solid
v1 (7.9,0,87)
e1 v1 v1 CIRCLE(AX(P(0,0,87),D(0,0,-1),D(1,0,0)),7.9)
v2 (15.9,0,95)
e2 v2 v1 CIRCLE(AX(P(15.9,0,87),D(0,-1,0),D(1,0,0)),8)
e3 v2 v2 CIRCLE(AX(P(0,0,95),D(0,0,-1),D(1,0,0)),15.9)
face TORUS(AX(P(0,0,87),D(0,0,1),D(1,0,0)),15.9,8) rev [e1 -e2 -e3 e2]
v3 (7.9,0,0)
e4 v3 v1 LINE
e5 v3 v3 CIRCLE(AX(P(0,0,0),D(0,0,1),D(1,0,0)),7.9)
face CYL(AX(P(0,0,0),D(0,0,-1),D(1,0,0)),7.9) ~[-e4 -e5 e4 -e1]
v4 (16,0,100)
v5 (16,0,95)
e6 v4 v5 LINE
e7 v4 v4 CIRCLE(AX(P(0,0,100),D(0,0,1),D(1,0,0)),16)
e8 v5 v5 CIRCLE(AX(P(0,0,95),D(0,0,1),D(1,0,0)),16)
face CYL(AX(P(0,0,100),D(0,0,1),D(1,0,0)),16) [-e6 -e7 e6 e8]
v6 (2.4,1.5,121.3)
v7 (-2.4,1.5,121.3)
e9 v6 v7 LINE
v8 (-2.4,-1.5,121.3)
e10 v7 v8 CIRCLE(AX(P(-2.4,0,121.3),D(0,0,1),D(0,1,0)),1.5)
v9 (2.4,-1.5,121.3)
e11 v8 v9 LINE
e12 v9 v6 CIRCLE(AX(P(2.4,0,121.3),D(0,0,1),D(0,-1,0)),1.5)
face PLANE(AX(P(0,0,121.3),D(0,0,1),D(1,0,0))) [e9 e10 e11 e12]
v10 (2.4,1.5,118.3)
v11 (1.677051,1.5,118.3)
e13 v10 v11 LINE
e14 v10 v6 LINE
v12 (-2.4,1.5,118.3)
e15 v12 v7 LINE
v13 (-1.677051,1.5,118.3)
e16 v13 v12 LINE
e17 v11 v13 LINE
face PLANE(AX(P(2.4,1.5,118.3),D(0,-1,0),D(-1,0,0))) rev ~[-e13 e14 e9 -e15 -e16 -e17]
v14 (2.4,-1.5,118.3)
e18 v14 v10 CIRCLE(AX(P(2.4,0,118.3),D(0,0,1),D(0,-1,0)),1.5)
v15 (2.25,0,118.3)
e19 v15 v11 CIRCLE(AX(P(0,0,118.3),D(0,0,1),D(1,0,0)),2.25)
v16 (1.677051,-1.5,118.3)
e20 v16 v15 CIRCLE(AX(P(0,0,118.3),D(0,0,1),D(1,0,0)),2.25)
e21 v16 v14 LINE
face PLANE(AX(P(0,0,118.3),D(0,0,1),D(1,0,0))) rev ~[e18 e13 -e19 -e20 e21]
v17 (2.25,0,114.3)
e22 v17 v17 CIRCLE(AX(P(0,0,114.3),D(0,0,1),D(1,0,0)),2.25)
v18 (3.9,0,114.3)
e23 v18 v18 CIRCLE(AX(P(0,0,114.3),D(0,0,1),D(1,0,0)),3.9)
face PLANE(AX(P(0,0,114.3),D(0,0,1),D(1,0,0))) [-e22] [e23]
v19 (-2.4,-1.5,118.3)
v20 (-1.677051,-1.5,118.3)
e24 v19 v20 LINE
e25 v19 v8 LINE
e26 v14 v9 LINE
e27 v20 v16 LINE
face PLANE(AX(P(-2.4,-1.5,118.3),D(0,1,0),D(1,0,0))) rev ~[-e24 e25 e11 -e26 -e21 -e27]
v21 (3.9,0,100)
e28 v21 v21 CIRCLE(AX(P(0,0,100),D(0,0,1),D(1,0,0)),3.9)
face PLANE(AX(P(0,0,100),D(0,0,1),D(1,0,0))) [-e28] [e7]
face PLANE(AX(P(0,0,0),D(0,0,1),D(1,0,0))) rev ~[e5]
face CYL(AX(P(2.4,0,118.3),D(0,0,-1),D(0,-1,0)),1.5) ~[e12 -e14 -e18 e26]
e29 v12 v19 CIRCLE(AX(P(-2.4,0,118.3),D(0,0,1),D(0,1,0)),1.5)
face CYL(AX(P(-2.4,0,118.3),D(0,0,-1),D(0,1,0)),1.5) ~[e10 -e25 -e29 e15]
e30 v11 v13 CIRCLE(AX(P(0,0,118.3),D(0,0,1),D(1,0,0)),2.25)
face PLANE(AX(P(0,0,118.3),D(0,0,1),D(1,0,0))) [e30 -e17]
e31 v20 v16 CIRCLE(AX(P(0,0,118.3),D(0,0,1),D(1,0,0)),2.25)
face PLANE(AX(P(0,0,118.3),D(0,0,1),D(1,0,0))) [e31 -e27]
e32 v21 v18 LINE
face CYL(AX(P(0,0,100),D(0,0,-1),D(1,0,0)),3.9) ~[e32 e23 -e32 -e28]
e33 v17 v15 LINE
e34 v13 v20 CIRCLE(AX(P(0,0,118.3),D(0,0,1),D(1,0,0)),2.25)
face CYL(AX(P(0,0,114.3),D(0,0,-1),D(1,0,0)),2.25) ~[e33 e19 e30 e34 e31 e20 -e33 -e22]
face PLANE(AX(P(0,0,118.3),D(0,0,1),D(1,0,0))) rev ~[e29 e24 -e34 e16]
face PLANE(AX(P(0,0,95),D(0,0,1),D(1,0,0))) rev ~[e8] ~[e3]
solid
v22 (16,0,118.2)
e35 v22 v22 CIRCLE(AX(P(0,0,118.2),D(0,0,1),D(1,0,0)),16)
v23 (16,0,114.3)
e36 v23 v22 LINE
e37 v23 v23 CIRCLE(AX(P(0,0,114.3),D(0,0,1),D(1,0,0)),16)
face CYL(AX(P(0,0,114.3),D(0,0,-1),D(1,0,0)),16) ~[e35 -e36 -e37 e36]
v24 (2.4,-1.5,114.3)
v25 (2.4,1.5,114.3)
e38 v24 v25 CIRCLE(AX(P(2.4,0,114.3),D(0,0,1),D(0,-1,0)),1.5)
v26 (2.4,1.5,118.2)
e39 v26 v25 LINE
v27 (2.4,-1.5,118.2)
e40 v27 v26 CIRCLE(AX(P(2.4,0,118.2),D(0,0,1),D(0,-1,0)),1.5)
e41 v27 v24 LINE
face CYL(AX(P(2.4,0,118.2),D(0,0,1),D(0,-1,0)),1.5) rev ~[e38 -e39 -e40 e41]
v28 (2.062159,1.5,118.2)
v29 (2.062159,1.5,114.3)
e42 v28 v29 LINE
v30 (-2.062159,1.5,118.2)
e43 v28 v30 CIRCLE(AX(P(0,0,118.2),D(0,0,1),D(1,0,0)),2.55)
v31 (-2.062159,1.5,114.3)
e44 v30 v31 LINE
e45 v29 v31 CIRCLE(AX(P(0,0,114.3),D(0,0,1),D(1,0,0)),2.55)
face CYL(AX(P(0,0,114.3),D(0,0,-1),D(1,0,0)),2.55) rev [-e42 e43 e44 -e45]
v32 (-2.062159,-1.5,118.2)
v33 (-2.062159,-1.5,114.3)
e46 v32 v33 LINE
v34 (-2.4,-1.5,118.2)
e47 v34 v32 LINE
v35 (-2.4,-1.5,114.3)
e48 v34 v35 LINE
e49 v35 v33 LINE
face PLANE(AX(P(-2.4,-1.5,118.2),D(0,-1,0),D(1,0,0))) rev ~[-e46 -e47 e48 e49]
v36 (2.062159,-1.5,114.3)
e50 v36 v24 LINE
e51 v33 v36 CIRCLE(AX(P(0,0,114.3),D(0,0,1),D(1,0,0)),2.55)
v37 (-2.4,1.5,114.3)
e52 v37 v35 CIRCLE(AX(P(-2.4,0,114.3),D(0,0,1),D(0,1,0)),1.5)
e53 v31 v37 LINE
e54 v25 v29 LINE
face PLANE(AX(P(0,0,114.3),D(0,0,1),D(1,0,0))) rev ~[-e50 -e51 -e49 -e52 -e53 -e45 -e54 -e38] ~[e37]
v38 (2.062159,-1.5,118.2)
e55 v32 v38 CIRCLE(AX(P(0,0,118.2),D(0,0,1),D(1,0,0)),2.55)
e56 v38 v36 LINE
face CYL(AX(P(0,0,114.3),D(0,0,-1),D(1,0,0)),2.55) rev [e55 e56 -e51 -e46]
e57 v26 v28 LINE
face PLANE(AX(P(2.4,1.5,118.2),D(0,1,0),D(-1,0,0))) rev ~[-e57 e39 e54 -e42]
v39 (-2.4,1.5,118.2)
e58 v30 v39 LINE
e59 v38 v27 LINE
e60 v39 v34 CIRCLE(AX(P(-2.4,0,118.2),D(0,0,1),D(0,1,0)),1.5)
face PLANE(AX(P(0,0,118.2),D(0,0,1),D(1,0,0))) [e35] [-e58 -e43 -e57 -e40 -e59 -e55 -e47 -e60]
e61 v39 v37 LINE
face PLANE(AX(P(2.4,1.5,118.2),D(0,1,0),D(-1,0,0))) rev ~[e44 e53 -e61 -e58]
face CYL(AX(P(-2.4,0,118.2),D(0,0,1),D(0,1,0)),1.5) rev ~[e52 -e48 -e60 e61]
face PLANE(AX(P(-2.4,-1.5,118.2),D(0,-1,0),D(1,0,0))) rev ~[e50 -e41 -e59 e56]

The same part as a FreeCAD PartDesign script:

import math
import FreeCAD as App
import Part
import Sketcher

V = App.Vector
Q = App.Units.Quantity


def edges_at(feature, points):
    """Names of the edges that pass closest to the given points."""
    edges = feature.Shape.Edges
    near = lambda p: min(range(len(edges)), key=lambda i: edges[i].distToShape(Part.Vertex(*p))[0])
    return sorted({f"Edge{near(p) + 1}" for p in points})

doc = App.newDocument("Part")
params = doc.addObject("Spreadsheet::Sheet", "Params")
for row, (alias, value) in enumerate([
    ("sketch1_diameter", "15.8 mm"),
    ("pad1_length", "100 mm"),
    ("sketch2_diameter", "7.8 mm"),
    ("pad2_length", "14.3 mm"),
    ("sketch3_diameter", "4.5 mm"),
    ("pad3_length", "4 mm"),
    ("sketch4_radius", "1.5 mm"),
    ("sketch4_width", "4.8 mm"),
    ("pad4_length", "3 mm"),
    ("sketch5_diameter", "32 mm"),
    ("pad5_length", "5 mm"),
    ("fillet_radius", "8 mm"),
    ("sketch6_diameter", "32 mm"),
    ("sketch6_diameter2", "5.1 mm"),
    ("pad6_length", "3.9 mm"),
    ("sketch7_radius", "1.5 mm"),
    ("sketch7_width", "4.8 mm"),
], start=1):
    params.set(f"A{row}", alias)
    params.set(f"B{row}", "=" + value)
    params.setAlias(f"B{row}", alias)

body = doc.addObject("PartDesign::Body", "Body")

# Sketch on XY plane
sketch1 = body.newObject("Sketcher::SketchObject", "Sketch")
sketch1.AttachmentSupport = (doc.getObject("XY_Plane"), [""])
sketch1.MapMode = "FlatFace"
sketch1.addGeometry(Part.Circle(V(0, 0, 0), V(0, 0, 1), 8), False)
sketch1.addConstraint([
    Sketcher.Constraint("Coincident", 0, 3, -1, 1),
    Sketcher.Constraint("Diameter", 0, Q("15.8 mm")),
])
sketch1.setExpression("Constraints[1]", "Params.sketch1_diameter")
pad1 = body.newObject("PartDesign::Pad", "Pad")
pad1.Profile = sketch1
pad1.setExpression("Length", "Params.pad1_length")

# Sketch on XY plane
sketch2 = body.newObject("Sketcher::SketchObject", "Sketch001")
sketch2.AttachmentSupport = (doc.getObject("XY_Plane"), [""])
sketch2.MapMode = "FlatFace"
sketch2.AttachmentOffset = App.Placement(V(0, 0, 100), App.Rotation())
sketch2.addGeometry(Part.Circle(V(0, 0, 0), V(0, 0, 1), 3.9), False)
sketch2.addConstraint([
    Sketcher.Constraint("Coincident", 0, 3, -1, 1),
    Sketcher.Constraint("Diameter", 0, Q("7.8 mm")),
])
sketch2.setExpression("Constraints[1]", "Params.sketch2_diameter")
pad2 = body.newObject("PartDesign::Pad", "Pad001")
pad2.Profile = sketch2
pad2.setExpression("Length", "Params.pad2_length")

# Sketch on XY plane
sketch3 = body.newObject("Sketcher::SketchObject", "Sketch002")
sketch3.AttachmentSupport = (doc.getObject("XY_Plane"), [""])
sketch3.MapMode = "FlatFace"
sketch3.AttachmentOffset = App.Placement(V(0, 0, 114.3), App.Rotation())
sketch3.addGeometry(Part.Circle(V(0, 0, 0), V(0, 0, 1), 2.2), False)
sketch3.addConstraint([
    Sketcher.Constraint("Coincident", 0, 3, -1, 1),
    Sketcher.Constraint("Diameter", 0, Q("4.5 mm")),
])
sketch3.setExpression("Constraints[1]", "Params.sketch3_diameter")
pad3 = body.newObject("PartDesign::Pad", "Pad002")
pad3.Profile = sketch3
pad3.setExpression("Length", "Params.pad3_length")

# Sketch on XY plane
sketch4 = body.newObject("Sketcher::SketchObject", "Sketch003")
sketch4.AttachmentSupport = (doc.getObject("XY_Plane"), [""])
sketch4.MapMode = "FlatFace"
sketch4.AttachmentOffset = App.Placement(V(0, 0, 118.3), App.Rotation())
sketch4.addGeometry([
    Part.ArcOfCircle(Part.Circle(V(-2.4, 0, 0), V(0, 0, 1), 1.5), math.radians(90), math.radians(270)),
    Part.LineSegment(V(-2.4, -1.5, 0), V(2.4, -1.5, 0)),
    Part.ArcOfCircle(Part.Circle(V(2.4, 0, 0), V(0, 0, 1), 1.5), math.radians(-90), math.radians(90)),
    Part.LineSegment(V(2.4, 1.5, 0), V(-2.4, 1.5, 0)),
], False)
sketch4.addConstraint([
    Sketcher.Constraint("Tangent", 0, 2, 1, 1),
    Sketcher.Constraint("Tangent", 1, 2, 2, 1),
    Sketcher.Constraint("Tangent", 2, 2, 3, 1),
    Sketcher.Constraint("Tangent", 3, 2, 0, 1),
    Sketcher.Constraint("Horizontal", 1),
    Sketcher.Constraint("Horizontal", 3),
    Sketcher.Constraint("Symmetric", 0, 3, 2, 3, -1, 1),
    Sketcher.Constraint("Radius", 0, Q("1.5 mm")),
    Sketcher.Constraint("DistanceX", 1, 1, 1, 2, Q("4.8 mm")),
])
sketch4.setExpression("Constraints[7]", "Params.sketch4_radius")
sketch4.setExpression("Constraints[8]", "Params.sketch4_width")
pad4 = body.newObject("PartDesign::Pad", "Pad003")
pad4.Profile = sketch4
pad4.setExpression("Length", "Params.pad4_length")

# Sketch on XY plane
sketch5 = body.newObject("Sketcher::SketchObject", "Sketch004")
sketch5.AttachmentSupport = (doc.getObject("XY_Plane"), [""])
sketch5.MapMode = "FlatFace"
sketch5.AttachmentOffset = App.Placement(V(0, 0, 100), App.Rotation())
sketch5.addGeometry(Part.Circle(V(0, 0, 0), V(0, 0, 1), 16), False)
sketch5.addConstraint([
    Sketcher.Constraint("Coincident", 0, 3, -1, 1),
    Sketcher.Constraint("Diameter", 0, Q("32 mm")),
])
sketch5.setExpression("Constraints[1]", "Params.sketch5_diameter")
pad5 = body.newObject("PartDesign::Pad", "Pad004")
pad5.Profile = sketch5
pad5.setExpression("Length", "Params.pad5_length")
pad5.Reversed = True
doc.recompute()

fillet = body.newObject("PartDesign::Fillet", "Fillet")
fillet.Base = (pad5, edges_at(pad5, [(-7.9, 0, 95)]))
fillet.setExpression("Radius", "Params.fillet_radius")
body2 = doc.addObject("PartDesign::Body", "Body001")

# Sketch on XY plane
sketch6 = body2.newObject("Sketcher::SketchObject", "Sketch005")
sketch6.AttachmentSupport = (doc.getObject("XY_Plane001"), [""])
sketch6.MapMode = "FlatFace"
sketch6.AttachmentOffset = App.Placement(V(0, 0, 114.3), App.Rotation())
sketch6.addGeometry([
    Part.Circle(V(0, 0, 0), V(0, 0, 1), 16),
    Part.Circle(V(0, 0, 0), V(0, 0, 1), 2.5),
], False)
sketch6.addConstraint([
    Sketcher.Constraint("Coincident", 0, 3, -1, 1),
    Sketcher.Constraint("Coincident", 1, 3, -1, 1),
    Sketcher.Constraint("Diameter", 0, Q("32 mm")),
    Sketcher.Constraint("Diameter", 1, Q("5.1 mm")),
])
sketch6.setExpression("Constraints[2]", "Params.sketch6_diameter")
sketch6.setExpression("Constraints[3]", "Params.sketch6_diameter2")
pad6 = body2.newObject("PartDesign::Pad", "Pad005")
pad6.Profile = sketch6
pad6.setExpression("Length", "Params.pad6_length")

# Sketch on XY plane
sketch7 = body2.newObject("Sketcher::SketchObject", "Sketch006")
sketch7.AttachmentSupport = (doc.getObject("XY_Plane001"), [""])
sketch7.MapMode = "FlatFace"
sketch7.AttachmentOffset = App.Placement(V(0, 0, 118.2), App.Rotation())
sketch7.addGeometry([
    Part.LineSegment(V(2.4, 1.5, 0), V(-2.4, 1.5, 0)),
    Part.ArcOfCircle(Part.Circle(V(-2.4, 0, 0), V(0, 0, 1), 1.5), math.radians(90), math.radians(270)),
    Part.LineSegment(V(-2.4, -1.5, 0), V(2.4, -1.5, 0)),
    Part.ArcOfCircle(Part.Circle(V(2.4, 0, 0), V(0, 0, 1), 1.5), math.radians(-90), math.radians(90)),
], False)
sketch7.addConstraint([
    Sketcher.Constraint("Tangent", 0, 2, 1, 1),
    Sketcher.Constraint("Tangent", 1, 2, 2, 1),
    Sketcher.Constraint("Tangent", 2, 2, 3, 1),
    Sketcher.Constraint("Tangent", 3, 2, 0, 1),
    Sketcher.Constraint("Horizontal", 0),
    Sketcher.Constraint("Horizontal", 2),
    Sketcher.Constraint("Symmetric", 1, 3, 3, 3, -1, 1),
    Sketcher.Constraint("Radius", 1, Q("1.5 mm")),
    Sketcher.Constraint("DistanceX", 0, 2, 0, 1, Q("4.8 mm")),
])
sketch7.setExpression("Constraints[7]", "Params.sketch7_radius")
sketch7.setExpression("Constraints[8]", "Params.sketch7_width")
pocket1 = body2.newObject("PartDesign::Pocket", "Pocket")
pocket1.Profile = sketch7
pocket1.Type = "ThroughAll"

doc.recompute()
